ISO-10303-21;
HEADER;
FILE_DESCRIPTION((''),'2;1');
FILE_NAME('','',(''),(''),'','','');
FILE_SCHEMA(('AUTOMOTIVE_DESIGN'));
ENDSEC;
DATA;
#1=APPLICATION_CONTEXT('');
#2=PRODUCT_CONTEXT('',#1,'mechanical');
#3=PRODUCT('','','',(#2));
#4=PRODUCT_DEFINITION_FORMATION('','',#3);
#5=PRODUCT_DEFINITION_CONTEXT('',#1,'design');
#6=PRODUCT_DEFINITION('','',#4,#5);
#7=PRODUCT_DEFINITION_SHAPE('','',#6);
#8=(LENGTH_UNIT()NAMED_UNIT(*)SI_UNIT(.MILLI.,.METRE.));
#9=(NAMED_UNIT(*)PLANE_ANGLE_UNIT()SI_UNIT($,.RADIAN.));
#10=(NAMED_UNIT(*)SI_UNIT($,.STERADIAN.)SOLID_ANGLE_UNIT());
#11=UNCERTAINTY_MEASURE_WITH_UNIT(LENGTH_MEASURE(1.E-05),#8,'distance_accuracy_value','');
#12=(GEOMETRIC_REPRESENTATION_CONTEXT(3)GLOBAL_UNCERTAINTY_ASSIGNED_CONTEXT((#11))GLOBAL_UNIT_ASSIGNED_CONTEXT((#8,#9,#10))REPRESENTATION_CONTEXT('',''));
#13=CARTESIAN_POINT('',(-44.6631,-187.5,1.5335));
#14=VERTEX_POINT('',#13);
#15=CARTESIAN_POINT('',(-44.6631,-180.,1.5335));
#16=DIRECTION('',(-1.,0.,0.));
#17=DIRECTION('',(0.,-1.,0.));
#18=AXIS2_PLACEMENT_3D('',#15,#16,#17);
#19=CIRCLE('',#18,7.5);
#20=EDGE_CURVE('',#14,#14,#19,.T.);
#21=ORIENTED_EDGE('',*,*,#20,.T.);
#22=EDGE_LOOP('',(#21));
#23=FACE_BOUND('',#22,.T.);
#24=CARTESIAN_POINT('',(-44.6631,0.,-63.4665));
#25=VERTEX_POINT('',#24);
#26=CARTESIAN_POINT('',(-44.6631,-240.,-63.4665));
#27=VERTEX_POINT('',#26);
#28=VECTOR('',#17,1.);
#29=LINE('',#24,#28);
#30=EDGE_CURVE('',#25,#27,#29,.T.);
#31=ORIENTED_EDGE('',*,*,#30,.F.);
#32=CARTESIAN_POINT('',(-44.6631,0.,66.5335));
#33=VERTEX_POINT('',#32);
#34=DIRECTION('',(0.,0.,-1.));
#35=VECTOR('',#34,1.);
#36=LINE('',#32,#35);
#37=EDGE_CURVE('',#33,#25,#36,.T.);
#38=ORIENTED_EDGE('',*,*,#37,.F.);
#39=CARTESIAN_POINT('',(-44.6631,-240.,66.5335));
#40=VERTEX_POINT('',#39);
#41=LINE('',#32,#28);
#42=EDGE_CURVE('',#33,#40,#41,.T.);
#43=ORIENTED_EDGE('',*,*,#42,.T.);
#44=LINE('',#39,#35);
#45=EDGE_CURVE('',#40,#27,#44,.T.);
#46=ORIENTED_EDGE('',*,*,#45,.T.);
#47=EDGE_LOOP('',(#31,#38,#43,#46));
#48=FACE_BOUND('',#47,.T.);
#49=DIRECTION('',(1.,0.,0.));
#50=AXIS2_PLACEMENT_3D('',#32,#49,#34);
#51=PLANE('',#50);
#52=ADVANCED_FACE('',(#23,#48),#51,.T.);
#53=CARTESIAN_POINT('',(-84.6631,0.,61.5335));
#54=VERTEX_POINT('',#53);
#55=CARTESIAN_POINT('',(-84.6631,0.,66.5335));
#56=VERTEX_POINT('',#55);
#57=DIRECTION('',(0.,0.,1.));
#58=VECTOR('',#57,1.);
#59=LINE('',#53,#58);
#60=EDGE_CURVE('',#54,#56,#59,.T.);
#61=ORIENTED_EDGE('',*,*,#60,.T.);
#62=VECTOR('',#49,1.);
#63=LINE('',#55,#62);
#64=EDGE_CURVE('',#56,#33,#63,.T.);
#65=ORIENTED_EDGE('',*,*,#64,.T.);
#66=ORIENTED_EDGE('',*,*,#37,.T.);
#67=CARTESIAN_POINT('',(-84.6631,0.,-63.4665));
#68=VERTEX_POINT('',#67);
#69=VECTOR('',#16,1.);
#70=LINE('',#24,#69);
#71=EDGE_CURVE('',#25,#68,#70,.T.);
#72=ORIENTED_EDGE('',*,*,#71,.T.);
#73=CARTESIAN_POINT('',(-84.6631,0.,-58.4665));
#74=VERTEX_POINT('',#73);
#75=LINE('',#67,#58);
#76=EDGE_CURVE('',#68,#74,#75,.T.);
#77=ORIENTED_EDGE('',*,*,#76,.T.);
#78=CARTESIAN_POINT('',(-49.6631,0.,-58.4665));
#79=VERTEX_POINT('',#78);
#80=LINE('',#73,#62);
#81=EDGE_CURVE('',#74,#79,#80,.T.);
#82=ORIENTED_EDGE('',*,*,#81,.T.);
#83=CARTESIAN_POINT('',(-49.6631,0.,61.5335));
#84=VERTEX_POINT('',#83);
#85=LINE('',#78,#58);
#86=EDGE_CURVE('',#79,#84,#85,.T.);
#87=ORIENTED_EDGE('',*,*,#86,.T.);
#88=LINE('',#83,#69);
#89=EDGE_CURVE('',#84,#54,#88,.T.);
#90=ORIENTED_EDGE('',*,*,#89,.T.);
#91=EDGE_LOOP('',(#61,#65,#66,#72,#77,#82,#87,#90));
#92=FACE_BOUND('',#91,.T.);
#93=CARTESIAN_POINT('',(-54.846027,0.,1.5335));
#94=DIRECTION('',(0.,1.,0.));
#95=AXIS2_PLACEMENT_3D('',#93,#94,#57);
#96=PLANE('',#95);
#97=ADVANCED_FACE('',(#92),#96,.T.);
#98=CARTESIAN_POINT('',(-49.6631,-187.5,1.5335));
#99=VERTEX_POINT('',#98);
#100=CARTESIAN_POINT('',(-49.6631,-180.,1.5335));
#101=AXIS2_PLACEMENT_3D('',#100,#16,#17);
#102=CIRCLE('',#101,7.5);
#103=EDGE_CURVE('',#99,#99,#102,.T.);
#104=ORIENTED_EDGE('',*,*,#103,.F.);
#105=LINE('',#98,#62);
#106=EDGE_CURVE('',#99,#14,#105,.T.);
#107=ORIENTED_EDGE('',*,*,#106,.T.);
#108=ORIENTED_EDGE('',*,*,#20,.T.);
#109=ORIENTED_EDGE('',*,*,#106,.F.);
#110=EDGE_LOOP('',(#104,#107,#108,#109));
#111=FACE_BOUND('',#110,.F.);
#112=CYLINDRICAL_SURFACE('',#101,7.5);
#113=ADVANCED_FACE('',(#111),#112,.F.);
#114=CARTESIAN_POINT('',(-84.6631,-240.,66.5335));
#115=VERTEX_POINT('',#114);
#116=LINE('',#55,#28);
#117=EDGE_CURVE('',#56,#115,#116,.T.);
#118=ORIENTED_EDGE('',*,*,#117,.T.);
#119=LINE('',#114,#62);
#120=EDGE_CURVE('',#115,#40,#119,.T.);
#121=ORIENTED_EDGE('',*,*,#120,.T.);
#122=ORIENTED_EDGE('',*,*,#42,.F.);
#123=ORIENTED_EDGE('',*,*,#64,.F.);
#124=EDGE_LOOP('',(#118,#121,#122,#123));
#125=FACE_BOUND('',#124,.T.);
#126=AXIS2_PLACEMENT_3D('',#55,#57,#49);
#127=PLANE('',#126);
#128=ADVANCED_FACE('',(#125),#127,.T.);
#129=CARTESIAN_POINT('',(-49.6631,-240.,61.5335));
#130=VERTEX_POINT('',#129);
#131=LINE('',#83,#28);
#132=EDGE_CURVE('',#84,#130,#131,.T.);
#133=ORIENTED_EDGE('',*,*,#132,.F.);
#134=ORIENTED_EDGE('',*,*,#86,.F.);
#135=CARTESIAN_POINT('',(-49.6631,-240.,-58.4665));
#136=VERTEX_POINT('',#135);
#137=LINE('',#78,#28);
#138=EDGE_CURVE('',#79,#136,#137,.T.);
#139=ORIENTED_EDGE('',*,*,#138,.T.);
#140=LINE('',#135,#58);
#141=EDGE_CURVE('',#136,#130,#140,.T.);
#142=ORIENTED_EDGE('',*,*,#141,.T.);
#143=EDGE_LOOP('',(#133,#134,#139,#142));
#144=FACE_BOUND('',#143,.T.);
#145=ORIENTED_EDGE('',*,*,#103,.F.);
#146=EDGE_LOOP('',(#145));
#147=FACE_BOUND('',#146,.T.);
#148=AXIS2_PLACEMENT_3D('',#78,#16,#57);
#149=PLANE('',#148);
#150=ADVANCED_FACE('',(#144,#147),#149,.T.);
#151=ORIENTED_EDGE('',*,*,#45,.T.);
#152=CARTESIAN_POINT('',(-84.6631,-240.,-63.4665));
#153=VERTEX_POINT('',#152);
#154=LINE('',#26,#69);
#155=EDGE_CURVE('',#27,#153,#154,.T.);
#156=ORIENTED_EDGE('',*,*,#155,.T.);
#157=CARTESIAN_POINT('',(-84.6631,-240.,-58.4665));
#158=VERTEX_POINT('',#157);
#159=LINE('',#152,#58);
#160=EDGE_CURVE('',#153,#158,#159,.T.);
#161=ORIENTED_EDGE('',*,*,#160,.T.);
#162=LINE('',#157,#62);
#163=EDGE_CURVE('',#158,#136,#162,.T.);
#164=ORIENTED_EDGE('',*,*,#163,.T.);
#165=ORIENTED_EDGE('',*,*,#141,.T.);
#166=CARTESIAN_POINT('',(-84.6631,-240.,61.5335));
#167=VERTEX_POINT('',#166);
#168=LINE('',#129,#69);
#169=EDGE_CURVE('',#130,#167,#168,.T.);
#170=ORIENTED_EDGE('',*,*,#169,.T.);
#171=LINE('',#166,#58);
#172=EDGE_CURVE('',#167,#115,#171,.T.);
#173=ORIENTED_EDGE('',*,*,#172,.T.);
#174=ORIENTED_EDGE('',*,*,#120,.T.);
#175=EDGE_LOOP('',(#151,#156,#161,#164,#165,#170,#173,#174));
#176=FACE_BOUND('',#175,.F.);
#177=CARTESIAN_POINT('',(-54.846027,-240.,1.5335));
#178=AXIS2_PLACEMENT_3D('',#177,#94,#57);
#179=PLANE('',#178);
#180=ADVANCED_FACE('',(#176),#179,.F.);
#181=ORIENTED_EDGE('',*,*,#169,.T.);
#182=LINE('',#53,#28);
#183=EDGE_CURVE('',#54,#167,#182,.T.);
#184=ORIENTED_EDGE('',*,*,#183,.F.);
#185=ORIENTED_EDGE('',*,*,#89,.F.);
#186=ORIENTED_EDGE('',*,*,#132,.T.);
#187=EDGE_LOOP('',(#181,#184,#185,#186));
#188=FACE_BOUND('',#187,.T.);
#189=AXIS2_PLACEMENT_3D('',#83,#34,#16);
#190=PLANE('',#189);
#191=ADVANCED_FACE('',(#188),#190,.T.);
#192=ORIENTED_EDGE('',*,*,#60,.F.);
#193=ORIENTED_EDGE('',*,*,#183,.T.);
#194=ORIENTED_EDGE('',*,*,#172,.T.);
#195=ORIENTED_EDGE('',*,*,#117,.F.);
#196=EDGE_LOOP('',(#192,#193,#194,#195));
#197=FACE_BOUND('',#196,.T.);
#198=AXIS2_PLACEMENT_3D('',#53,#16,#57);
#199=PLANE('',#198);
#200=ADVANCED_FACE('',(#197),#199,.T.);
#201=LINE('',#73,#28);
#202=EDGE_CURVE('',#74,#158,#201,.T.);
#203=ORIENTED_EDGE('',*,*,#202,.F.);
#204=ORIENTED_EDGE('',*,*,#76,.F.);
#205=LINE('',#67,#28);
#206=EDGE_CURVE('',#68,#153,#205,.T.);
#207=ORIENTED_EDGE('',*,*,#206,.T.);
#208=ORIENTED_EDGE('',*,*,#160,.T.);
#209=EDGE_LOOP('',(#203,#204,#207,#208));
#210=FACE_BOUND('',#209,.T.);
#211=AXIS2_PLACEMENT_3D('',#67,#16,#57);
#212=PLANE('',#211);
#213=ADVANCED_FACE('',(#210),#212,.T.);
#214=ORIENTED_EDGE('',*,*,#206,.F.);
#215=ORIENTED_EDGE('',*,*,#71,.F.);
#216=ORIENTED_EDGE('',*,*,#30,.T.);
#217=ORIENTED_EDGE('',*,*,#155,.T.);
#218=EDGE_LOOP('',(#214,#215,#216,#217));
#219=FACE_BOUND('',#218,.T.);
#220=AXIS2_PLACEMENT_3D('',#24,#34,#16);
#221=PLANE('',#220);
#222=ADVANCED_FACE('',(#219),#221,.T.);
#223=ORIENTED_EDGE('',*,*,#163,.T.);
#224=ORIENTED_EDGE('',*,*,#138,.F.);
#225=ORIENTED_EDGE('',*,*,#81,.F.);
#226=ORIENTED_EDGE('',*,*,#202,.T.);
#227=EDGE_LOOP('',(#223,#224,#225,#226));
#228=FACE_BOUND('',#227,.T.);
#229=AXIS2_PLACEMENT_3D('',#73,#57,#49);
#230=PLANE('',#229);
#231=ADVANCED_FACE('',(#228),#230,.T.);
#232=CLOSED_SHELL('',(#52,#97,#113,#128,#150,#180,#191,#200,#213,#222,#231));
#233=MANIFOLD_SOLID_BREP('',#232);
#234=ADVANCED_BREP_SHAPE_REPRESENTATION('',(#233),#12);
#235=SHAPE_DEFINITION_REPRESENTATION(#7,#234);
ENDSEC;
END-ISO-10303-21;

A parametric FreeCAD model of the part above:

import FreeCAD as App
import Part
import Sketcher


def add_polygon(sketch, points):
    """Adds a closed chain of lines whose ends are joined by coincident constraints."""
    first, n = sketch.GeometryCount, len(points)
    for a, b in zip(points, points[1:] + points[:1]):
        sketch.addGeometry(Part.LineSegment(App.Vector(*a, 0), App.Vector(*b, 0)), False)
    for i in range(n):
        sketch.addConstraint(Sketcher.Constraint("Coincident", first + i, 2, first + (i + 1) % n, 1))

doc = App.newDocument("Part")
body = doc.addObject("PartDesign::Body", "Body")

sketch1 = body.newObject("Sketcher::SketchObject", "Sketch")
sketch1.AttachmentSupport = (doc.getObject("XZ_Plane"), [""])
sketch1.MapMode = "FlatFace"
add_polygon(sketch1, [(-45, 67), (-85, 67), (-85, 62), (-50, 62), (-50, -58), (-85, -58), (-85, -63), (-45, -63)])
sketch1.addConstraint(Sketcher.Constraint("Horizontal", 0))
sketch1.addConstraint(Sketcher.Constraint("Vertical", 1))
sketch1.addConstraint(Sketcher.Constraint("Horizontal", 2))
sketch1.addConstraint(Sketcher.Constraint("Vertical", 3))
sketch1.addConstraint(Sketcher.Constraint("Horizontal", 4))
sketch1.addConstraint(Sketcher.Constraint("Vertical", 5))
sketch1.addConstraint(Sketcher.Constraint("Horizontal", 6))
sketch1.addConstraint(Sketcher.Constraint("Vertical", 7))
sketch1.addConstraint(Sketcher.Constraint("Vertical", 1, 2, 4, 2))
sketch1.addConstraint(Sketcher.Constraint("Equal", 1, 5))
sketch1.addConstraint(Sketcher.Constraint("DistanceX", 0, 2, 0, 1, 40.0))
sketch1.addConstraint(Sketcher.Constraint("DistanceX", 2, 1, 2, 2, 35.0))
sketch1.addConstraint(Sketcher.Constraint("DistanceY", 1, 2, 1, 1, 5.0))
sketch1.addConstraint(Sketcher.Constraint("DistanceY", 3, 2, 3, 1, 120.0))
sketch1.addConstraint(Sketcher.Constraint("DistanceX", 0, 2, -1, 1, 84.663))
sketch1.addConstraint(Sketcher.Constraint("DistanceY", -1, 1, 0, 2, 66.5335))
pad1 = body.newObject("PartDesign::Pad", "Pad")
pad1.Profile = sketch1
pad1.Length = 240

sketch2 = body.newObject("Sketcher::SketchObject", "Sketch001")
sketch2.AttachmentSupport = (doc.getObject("YZ_Plane"), [""])
sketch2.MapMode = "FlatFace"
sketch2.AttachmentOffset = App.Placement(App.Vector(0, 0, -49.6631), App.Rotation())
sketch2.addGeometry(Part.Circle(App.Vector(-180, 2, 0), App.Vector(0, 0, 1), 8), False)
sketch2.addConstraint(Sketcher.Constraint("Diameter", 0, 15.0))
sketch2.addConstraint(Sketcher.Constraint("DistanceX", 0, 3, -1, 1, 180.0))
sketch2.addConstraint(Sketcher.Constraint("DistanceY", -1, 1, 0, 3, 1.5335))
pocket1 = body.newObject("PartDesign::Pocket", "Pocket")
pocket1.Profile = sketch2
pocket1.Type = "ThroughAll"
pocket1.Reversed = True

doc.recompute()
